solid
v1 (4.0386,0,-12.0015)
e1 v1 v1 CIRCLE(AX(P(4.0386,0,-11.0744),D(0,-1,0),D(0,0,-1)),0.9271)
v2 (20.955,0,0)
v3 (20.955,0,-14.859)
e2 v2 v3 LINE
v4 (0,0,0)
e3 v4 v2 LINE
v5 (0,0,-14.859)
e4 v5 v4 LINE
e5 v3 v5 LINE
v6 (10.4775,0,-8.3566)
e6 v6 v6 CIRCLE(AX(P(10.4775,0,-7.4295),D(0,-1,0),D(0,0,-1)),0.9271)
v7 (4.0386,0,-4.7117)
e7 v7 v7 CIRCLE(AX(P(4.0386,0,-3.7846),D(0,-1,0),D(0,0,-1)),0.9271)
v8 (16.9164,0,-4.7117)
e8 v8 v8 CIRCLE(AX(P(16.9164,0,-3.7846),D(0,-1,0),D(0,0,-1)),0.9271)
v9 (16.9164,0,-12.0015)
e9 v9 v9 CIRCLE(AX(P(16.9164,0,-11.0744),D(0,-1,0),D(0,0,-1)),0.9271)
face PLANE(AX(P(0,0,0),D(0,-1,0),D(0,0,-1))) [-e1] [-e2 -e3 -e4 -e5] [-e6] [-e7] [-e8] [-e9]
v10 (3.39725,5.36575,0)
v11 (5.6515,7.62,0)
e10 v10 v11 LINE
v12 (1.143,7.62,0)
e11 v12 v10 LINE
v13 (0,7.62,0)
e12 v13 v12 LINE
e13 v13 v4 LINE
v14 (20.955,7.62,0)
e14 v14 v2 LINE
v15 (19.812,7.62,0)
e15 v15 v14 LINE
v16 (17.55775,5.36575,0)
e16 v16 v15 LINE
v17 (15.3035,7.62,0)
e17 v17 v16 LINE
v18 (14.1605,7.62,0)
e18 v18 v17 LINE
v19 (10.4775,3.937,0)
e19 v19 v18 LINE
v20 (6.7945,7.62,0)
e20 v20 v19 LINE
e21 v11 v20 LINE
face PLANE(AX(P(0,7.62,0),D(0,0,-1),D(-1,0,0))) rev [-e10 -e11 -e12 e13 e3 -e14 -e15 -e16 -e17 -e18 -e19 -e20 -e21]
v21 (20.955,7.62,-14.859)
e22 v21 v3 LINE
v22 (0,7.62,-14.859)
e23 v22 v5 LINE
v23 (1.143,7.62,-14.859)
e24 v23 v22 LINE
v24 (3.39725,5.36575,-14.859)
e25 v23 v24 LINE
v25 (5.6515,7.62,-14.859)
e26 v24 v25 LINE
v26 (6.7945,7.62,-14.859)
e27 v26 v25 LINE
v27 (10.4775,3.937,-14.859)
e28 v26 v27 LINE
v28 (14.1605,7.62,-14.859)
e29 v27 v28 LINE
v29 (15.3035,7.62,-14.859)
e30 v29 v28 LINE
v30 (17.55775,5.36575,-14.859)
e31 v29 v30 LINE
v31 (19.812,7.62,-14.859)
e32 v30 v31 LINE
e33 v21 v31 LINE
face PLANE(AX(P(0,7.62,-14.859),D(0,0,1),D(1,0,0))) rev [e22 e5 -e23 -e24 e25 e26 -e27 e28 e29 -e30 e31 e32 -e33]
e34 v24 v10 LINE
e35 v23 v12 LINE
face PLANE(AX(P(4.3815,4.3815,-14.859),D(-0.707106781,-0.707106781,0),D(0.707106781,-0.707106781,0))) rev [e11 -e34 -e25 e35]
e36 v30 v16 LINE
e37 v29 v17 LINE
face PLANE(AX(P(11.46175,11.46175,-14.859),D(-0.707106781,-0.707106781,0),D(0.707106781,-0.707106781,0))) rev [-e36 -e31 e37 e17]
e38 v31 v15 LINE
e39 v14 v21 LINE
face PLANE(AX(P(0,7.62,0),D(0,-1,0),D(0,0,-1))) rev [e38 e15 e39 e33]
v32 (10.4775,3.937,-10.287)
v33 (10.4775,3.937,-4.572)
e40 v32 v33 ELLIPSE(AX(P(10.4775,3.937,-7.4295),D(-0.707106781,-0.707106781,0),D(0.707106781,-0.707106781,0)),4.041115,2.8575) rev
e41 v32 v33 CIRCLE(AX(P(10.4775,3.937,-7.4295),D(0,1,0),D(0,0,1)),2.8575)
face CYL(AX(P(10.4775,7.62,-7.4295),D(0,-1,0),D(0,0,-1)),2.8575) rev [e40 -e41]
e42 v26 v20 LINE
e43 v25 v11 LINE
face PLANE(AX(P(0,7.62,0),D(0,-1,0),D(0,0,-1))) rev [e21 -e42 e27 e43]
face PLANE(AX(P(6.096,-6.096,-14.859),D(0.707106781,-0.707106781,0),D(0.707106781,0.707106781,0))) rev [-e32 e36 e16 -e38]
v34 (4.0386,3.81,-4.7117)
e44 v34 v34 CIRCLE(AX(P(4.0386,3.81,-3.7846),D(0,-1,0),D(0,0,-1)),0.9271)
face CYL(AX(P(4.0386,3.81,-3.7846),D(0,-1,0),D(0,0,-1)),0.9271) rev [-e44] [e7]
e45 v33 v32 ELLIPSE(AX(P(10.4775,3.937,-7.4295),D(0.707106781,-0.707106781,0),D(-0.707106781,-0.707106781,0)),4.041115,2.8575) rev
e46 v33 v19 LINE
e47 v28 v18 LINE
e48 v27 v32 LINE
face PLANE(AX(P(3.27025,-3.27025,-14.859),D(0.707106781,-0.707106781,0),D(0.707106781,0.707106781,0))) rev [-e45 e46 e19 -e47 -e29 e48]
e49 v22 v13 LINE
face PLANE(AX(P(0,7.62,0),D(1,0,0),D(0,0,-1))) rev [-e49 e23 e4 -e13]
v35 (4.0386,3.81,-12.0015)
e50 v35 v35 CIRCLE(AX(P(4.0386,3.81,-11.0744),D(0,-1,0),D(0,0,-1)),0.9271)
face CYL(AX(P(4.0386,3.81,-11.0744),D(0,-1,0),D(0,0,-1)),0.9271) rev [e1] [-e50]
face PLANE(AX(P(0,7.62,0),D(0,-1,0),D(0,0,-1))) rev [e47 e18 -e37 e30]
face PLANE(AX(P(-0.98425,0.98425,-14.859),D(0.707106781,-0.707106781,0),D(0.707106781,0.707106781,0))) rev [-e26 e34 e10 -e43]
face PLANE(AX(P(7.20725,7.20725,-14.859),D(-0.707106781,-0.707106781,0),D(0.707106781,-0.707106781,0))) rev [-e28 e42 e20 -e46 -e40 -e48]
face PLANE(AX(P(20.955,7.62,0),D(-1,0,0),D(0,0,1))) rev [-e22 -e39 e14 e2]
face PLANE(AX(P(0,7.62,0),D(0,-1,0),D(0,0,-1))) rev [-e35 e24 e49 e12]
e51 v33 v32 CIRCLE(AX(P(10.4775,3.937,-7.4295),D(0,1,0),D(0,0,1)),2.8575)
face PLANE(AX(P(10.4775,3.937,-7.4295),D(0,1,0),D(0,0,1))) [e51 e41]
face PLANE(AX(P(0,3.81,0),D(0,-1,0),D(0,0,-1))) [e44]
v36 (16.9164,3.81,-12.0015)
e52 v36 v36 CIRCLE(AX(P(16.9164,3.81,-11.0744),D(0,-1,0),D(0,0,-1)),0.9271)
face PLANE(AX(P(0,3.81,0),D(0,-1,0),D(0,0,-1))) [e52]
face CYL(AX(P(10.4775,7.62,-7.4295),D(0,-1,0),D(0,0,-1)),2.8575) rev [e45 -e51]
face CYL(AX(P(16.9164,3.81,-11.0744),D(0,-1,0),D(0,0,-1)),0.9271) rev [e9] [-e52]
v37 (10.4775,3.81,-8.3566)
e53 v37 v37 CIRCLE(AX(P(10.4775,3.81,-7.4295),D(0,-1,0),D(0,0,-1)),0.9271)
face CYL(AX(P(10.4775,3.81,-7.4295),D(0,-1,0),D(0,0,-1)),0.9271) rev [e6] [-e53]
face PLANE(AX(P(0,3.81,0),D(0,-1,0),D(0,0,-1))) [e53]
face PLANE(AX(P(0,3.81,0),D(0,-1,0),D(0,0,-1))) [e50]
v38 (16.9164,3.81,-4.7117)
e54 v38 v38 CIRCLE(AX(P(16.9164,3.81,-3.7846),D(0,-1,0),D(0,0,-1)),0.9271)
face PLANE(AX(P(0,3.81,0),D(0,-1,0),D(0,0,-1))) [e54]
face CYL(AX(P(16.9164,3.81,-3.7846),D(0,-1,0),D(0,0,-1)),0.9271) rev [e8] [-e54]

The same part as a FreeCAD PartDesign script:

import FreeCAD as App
import Part
import Sketcher
Q = App.Units.Quantity


def add_polygon(sketch, points):
    """Adds a closed chain of lines whose ends are joined by coincident constraints."""
    first, n = sketch.GeometryCount, len(points)
    for a, b in zip(points, points[1:] + points[:1]):
        sketch.addGeometry(Part.LineSegment(App.Vector(*a, 0), App.Vector(*b, 0)), False)
    for i in range(n):
        sketch.addConstraint(Sketcher.Constraint("Coincident", first + i, 2, first + (i + 1) % n, 1))

doc = App.newDocument("Part")
body = doc.addObject("PartDesign::Body", "Body")

# Sketch on XZ plane
sketch1 = body.newObject("Sketcher::SketchObject", "Sketch")
sketch1.AttachmentSupport = (doc.getObject("XZ_Plane"), [""])
sketch1.MapMode = "FlatFace"
add_polygon(sketch1, [(0, -15), (0, 0), (21, 0), (21, -15)])  # lines 0-3
sketch1.addConstraint([
    Sketcher.Constraint("Vertical", 0),
    Sketcher.Constraint("Horizontal", 1),
    Sketcher.Constraint("Vertical", 2),
    Sketcher.Constraint("Horizontal", 3),
    Sketcher.Constraint("Coincident", 0, 2, -1, 1),
    Sketcher.Constraint("DistanceX", 1, 1, 1, 2, Q("0.825 in")),
    Sketcher.Constraint("DistanceY", 0, 1, 0, 2, Q("0.585 in")),
])
pad1 = body.newObject("PartDesign::Pad", "Pad")
pad1.Profile = sketch1
pad1.Length = Q("0.3 in")
pad1.Reversed = True

# Sketch on XY plane
sketch2 = body.newObject("Sketcher::SketchObject", "Sketch001")
sketch2.AttachmentSupport = (doc.getObject("XY_Plane"), [""])
sketch2.MapMode = "FlatFace"
add_polygon(sketch2, [(5.7, 7.6), (1.1, 7.6), (3.4, 5.4)])  # lines 0-2
add_polygon(sketch2, [(14.2, 7.6), (6.8, 7.6), (10.5, 3.9)])  # lines 3-5
add_polygon(sketch2, [(19.8, 7.6), (15.3, 7.6), (17.6, 5.4)])  # lines 6-8
sketch2.addConstraint([
    Sketcher.Constraint("Horizontal", 0),
    Sketcher.Constraint("Horizontal", 3),
    Sketcher.Constraint("Horizontal", 6),
    Sketcher.Constraint("Perpendicular", 1, 2),
    Sketcher.Constraint("Perpendicular", 2, 4),
    Sketcher.Constraint("Perpendicular", 4, 5),
    Sketcher.Constraint("Perpendicular", 5, 7),
    Sketcher.Constraint("Perpendicular", 7, 8),
    Sketcher.Constraint("Horizontal", 2, 2, 3, 2),
    Sketcher.Constraint("Horizontal", 5, 2, 6, 2),
    Sketcher.Constraint("Horizontal", 1, 2, 7, 2),
    Sketcher.Constraint("Equal", 1, 2),
    Sketcher.Constraint("DistanceX", 3, 2, 3, 1, Q("0.29 in")),
    Sketcher.Constraint("DistanceY", -1, 1, 0, 2, Q("0.3 in")),
    Sketcher.Constraint("DistanceX", -1, 1, 8, 2, Q("0.78 in")),
    Sketcher.Constraint("DistanceX", 2, 2, 4, 2, Q("0.19 in")),
    Sketcher.Constraint("DistanceX", 4, 2, 6, 2, Q("0.19 in")),
    Sketcher.Constraint("DistanceX", 0, 2, 0, 1, Q("0.1775 in")),
])
pocket1 = body.newObject("PartDesign::Pocket", "Pocket")
pocket1.Profile = sketch2
pocket1.Type = "ThroughAll"

# Sketch on XZ plane
sketch3 = body.newObject("Sketcher::SketchObject", "Sketch002")
sketch3.AttachmentSupport = (doc.getObject("XZ_Plane"), [""])
sketch3.MapMode = "FlatFace"
sketch3.AttachmentOffset = App.Placement(App.Vector(0, 0, -0.155 * 25.4), App.Rotation())
sketch3.addGeometry(Part.Circle(App.Vector(10.5, -7.4, 0), App.Vector(0, 0, 1), 2.9), False)
sketch3.addConstraint([
    Sketcher.Constraint("Diameter", 0, Q("0.225 in")),
    Sketcher.Constraint("DistanceX", -1, 1, 0, 3, Q("0.4125 in")),
    Sketcher.Constraint("DistanceY", 0, 3, -1, 1, Q("0.2925 in")),
])
pocket2 = body.newObject("PartDesign::Pocket", "Pocket001")
pocket2.Profile = sketch3
pocket2.Type = "ThroughAll"

# Sketch on XZ plane
sketch4 = body.newObject("Sketcher::SketchObject", "Sketch003")
sketch4.AttachmentSupport = (doc.getObject("XZ_Plane"), [""])
sketch4.MapMode = "FlatFace"
sketch4.addGeometry([
    Part.Circle(App.Vector(4, -3.8, 0), App.Vector(0, 0, 1), 0.9),  # 0
    Part.Circle(App.Vector(4, -11.1, 0), App.Vector(0, 0, 1), 0.9),  # 1
    Part.Circle(App.Vector(10.5, -7.4, 0), App.Vector(0, 0, 1), 0.9),  # 2
    Part.Circle(App.Vector(16.9, -11.1, 0), App.Vector(0, 0, 1), 0.9),  # 3
    Part.Circle(App.Vector(16.9, -3.8, 0), App.Vector(0, 0, 1), 0.9),  # 4
], False)
sketch4.addConstraint([
    Sketcher.Constraint("Equal", 0, 1),
    Sketcher.Constraint("Equal", 1, 2),
    Sketcher.Constraint("Equal", 2, 3),
    Sketcher.Constraint("Equal", 3, 4),
    Sketcher.Constraint("Horizontal", 1, 3, 3, 3),
    Sketcher.Constraint("Horizontal", 0, 3, 4, 3),
    Sketcher.Constraint("Vertical", 0, 3, 1, 3),
    Sketcher.Constraint("Vertical", 3, 3, 4, 3),
    Sketcher.Constraint("Diameter", 0, Q("0.073 in")),
    Sketcher.Constraint("DistanceX", -1, 1, 0, 3, Q("0.159 in")),
    Sketcher.Constraint("DistanceY", 0, 3, -1, 1, Q("0.149 in")),
    Sketcher.Constraint("DistanceY", 1, 3, -1, 1, Q("0.436 in")),
    Sketcher.Constraint("DistanceX", -1, 1, 3, 3, Q("0.666 in")),
    Sketcher.Constraint("DistanceX", -1, 1, 2, 3, Q("0.4125 in")),
    Sketcher.Constraint("DistanceY", 2, 3, -1, 1, Q("0.2925 in")),
])
pocket3 = body.newObject("PartDesign::Pocket", "Pocket002")
pocket3.Profile = sketch4
pocket3.Length = Q("0.15 in")

doc.recompute()
